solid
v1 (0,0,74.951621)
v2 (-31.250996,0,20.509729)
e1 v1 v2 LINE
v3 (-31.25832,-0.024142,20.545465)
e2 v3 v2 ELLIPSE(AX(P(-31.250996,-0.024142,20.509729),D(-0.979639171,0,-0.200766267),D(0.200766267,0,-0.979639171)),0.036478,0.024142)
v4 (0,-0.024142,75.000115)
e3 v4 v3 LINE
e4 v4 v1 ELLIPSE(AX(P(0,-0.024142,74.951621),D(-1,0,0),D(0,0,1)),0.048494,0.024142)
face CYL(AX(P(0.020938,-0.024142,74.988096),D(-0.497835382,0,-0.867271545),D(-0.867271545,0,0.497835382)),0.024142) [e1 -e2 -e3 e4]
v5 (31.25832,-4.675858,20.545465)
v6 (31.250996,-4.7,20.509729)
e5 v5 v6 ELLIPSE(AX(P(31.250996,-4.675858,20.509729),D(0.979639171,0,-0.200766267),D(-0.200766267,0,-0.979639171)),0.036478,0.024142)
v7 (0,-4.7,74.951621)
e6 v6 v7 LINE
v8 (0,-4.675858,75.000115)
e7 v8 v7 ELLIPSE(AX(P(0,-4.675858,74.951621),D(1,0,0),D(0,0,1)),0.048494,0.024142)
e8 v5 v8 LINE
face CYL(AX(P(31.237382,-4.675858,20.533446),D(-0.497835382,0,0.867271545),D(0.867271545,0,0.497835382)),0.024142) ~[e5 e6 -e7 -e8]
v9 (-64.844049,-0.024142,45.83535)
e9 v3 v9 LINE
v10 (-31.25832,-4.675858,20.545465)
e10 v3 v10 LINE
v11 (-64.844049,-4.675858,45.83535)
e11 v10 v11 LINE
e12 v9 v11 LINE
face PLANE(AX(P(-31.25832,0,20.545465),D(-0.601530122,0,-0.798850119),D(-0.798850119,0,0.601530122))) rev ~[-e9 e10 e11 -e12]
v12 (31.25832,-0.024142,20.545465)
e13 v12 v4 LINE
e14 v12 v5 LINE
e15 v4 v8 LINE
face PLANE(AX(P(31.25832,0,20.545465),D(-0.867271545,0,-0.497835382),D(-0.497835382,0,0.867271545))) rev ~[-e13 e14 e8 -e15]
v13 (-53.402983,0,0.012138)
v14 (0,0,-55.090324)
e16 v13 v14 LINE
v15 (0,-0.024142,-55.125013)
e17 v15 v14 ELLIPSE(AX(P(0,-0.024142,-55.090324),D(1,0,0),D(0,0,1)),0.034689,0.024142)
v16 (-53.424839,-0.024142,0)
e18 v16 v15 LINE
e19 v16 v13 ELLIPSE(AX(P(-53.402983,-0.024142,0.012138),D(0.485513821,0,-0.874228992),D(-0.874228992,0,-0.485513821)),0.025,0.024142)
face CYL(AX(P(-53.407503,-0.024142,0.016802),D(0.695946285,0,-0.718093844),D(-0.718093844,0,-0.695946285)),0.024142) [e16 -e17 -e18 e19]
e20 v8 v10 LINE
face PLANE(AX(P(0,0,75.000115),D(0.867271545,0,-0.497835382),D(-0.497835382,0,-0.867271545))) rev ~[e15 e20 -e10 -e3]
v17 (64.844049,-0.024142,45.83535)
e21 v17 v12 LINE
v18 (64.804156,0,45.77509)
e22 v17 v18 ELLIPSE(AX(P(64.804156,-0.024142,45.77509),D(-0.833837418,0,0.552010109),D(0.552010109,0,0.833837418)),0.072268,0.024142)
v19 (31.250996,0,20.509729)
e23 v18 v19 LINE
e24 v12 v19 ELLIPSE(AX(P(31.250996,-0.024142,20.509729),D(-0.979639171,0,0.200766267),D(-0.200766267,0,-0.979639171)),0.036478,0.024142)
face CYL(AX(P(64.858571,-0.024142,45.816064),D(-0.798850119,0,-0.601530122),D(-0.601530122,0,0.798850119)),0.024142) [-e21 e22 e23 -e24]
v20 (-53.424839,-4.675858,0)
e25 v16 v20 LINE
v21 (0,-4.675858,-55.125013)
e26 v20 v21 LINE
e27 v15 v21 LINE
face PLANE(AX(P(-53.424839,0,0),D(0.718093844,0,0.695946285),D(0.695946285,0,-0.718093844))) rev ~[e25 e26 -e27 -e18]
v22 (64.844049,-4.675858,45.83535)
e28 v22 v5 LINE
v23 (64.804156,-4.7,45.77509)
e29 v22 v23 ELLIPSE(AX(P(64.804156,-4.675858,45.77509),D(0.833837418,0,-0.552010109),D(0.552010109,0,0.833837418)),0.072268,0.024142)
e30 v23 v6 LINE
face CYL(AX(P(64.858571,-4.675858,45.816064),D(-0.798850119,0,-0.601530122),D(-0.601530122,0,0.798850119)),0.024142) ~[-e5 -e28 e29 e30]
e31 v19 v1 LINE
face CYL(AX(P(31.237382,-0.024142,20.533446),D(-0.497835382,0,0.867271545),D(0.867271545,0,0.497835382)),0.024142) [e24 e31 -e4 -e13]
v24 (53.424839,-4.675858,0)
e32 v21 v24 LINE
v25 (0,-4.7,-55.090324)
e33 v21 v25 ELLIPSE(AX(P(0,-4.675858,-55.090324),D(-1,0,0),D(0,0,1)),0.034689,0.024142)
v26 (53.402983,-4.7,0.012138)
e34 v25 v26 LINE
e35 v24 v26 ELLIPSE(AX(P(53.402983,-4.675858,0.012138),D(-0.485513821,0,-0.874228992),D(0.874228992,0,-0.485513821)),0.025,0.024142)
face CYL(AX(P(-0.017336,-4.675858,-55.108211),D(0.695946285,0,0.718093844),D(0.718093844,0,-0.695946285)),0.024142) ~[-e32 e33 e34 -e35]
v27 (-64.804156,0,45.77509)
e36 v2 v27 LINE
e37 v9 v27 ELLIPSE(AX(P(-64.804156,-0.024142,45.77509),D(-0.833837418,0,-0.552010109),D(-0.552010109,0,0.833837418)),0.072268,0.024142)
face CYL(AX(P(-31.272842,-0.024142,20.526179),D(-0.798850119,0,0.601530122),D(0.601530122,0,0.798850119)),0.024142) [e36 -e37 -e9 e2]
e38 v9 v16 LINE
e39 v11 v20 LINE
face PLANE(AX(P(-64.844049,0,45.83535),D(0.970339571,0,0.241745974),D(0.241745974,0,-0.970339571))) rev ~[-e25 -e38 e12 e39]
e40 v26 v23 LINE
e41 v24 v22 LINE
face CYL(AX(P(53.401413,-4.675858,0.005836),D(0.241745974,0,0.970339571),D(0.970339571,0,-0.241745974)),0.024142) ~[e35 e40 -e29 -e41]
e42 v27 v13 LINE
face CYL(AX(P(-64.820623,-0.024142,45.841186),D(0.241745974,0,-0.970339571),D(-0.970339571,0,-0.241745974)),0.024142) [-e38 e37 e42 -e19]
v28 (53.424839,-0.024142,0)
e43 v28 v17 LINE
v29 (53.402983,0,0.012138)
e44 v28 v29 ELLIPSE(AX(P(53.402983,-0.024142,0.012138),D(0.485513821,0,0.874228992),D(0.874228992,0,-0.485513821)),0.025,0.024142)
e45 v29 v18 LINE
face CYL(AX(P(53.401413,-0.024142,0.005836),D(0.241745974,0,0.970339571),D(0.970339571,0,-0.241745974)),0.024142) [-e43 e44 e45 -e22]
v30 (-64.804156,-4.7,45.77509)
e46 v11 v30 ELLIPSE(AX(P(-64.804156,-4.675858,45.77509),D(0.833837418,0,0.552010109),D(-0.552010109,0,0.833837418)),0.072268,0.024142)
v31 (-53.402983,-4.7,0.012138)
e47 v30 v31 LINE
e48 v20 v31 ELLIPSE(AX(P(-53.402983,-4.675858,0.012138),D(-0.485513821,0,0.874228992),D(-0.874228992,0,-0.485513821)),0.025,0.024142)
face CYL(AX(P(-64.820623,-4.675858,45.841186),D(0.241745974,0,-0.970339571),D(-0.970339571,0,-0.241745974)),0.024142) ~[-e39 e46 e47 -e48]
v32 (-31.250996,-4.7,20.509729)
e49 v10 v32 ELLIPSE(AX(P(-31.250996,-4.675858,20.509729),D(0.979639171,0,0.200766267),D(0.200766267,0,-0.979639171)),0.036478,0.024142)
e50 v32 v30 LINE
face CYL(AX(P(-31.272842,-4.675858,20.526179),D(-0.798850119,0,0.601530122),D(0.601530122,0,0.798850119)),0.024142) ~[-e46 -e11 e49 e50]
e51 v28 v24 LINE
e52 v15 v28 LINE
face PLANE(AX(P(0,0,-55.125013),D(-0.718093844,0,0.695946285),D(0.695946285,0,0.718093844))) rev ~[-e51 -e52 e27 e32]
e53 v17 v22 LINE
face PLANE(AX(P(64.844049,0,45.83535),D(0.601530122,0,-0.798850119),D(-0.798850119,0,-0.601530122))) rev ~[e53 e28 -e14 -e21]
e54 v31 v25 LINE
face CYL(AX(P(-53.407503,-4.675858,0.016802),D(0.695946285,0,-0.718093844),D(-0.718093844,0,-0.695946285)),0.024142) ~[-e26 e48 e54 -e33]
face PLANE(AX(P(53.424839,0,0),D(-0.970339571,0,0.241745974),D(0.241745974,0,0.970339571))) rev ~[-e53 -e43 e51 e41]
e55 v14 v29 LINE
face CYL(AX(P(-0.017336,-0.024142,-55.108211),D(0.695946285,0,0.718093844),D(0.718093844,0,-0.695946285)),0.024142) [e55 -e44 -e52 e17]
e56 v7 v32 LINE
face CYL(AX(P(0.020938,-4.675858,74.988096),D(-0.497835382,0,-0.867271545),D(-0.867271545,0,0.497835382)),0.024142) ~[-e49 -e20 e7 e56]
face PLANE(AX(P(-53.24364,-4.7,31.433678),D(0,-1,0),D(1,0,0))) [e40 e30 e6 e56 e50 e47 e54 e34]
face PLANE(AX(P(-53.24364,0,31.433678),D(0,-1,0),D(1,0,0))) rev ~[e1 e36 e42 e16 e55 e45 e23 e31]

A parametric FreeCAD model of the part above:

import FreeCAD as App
import Part
import Sketcher

V = App.Vector


def edges_at(feature, points):
    """Names of the edges that pass closest to the given points."""
    edges = feature.Shape.Edges
    near = lambda p: min(range(len(edges)), key=lambda i: edges[i].distToShape(Part.Vertex(*p))[0])
    return sorted({f"Edge{near(p) + 1}" for p in points})


def add_polygon(sketch, points):
    """Adds a closed chain of lines whose ends are joined by coincident constraints."""
    first, n = sketch.GeometryCount, len(points)
    for a, b in zip(points, points[1:] + points[:1]):
        sketch.addGeometry(Part.LineSegment(App.Vector(*a, 0), App.Vector(*b, 0)), False)
    for i in range(n):
        sketch.addConstraint(Sketcher.Constraint("Coincident", first + i, 2, first + (i + 1) % n, 1))

doc = App.newDocument("Part")
body = doc.addObject("PartDesign::Body", "Body")

sketch1 = doc.addObject("Sketcher::SketchObject", "Sketch")
body.addObject(sketch1)
sketch1.AttachmentSupport = (doc.XZ_Plane, [""])
sketch1.MapMode = "FlatFace"
add_polygon(sketch1, [(0, -55), (53, 0), (65, 46), (31, 21), (0, 75), (-31, 21), (-65, 46), (-53, 0)])
sketch1.addConstraint([
    Sketcher.Constraint("Symmetric", 0, 2, 6, 2, -1, 1),
    Sketcher.Constraint("Symmetric", 2, 2, 4, 2, -2),
    Sketcher.Constraint("Symmetric", 1, 2, 5, 2, -2),
    Sketcher.Constraint("PointOnObject", 0, 2, -1),
    Sketcher.Constraint("PointOnObject", 3, 2, -2),
    Sketcher.Constraint("PointOnObject", 7, 2, -2),
    Sketcher.Constraint("Distance", 1, 47.236402),
    Sketcher.Constraint("DistanceX", 5, 2, 1, 2, 129.688098),
    Sketcher.Constraint("Distance", 0, 76.765751),
    Sketcher.Constraint("Distance", 2, 42.042591),
    Sketcher.Constraint("DistanceX", -1, 1, 0, 2, 53.424839),
    Sketcher.Constraint("DistanceX", -1, 1, 2, 2, 31.25832),
    Sketcher.Constraint("DistanceY", 2, 2, 3, 2, 54.45465),
])
pad1 = doc.addObject("PartDesign::Pad", "Pad")
body.addObject(pad1)
pad1.Profile = sketch1
pad1.Length = 4.7
doc.recompute()

fillet = doc.addObject("PartDesign::Fillet", "Fillet")
body.addObject(fillet)
fillet.Base = (pad1, edges_at(pad1, [
    (26.712, -4.7, -27.563),
    (59.134, -4.7, 22.918),
    (48.051, -4.7, 33.19),
    (15.629, -4.7, 47.773),
    (-15.629, -4.7, 47.773),
    (-48.051, -4.7, 33.19),
    (-59.134, -4.7, 22.918),
    (-26.712, -4.7, -27.563),
    (26.712, 0, -27.563),
    (59.134, 0, 22.918),
    (48.051, 0, 33.19),
    (15.629, 0, 47.773),
    (-15.629, 0, 47.773),
    (-48.051, 0, 33.19),
    (-59.134, 0, 22.918),
    (-26.712, 0, -27.563),
]))
fillet.Radius = 0.024142

doc.recompute()
